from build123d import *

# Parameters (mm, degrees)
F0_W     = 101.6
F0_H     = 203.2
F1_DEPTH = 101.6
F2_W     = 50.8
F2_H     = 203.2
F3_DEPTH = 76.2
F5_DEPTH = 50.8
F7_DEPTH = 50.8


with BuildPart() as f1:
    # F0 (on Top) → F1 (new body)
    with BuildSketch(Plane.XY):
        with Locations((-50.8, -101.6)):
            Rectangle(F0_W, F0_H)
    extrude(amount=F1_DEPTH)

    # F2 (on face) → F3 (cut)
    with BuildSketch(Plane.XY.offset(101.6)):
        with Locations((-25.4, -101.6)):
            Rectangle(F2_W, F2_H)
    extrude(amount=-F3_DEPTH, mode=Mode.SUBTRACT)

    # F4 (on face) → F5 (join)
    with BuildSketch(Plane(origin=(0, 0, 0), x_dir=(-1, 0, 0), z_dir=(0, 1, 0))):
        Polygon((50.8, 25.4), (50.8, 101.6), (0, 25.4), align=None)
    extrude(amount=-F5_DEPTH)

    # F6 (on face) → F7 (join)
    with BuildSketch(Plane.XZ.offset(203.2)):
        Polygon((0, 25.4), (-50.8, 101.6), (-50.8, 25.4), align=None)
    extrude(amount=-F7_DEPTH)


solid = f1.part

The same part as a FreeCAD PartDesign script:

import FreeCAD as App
import Part
import Sketcher

V = App.Vector
Q = App.Units.Quantity


def add_polygon(sketch, points):
    """Adds a closed chain of lines whose ends are joined by coincident constraints."""
    first, n = sketch.GeometryCount, len(points)
    for a, b in zip(points, points[1:] + points[:1]):
        sketch.addGeometry(Part.LineSegment(App.Vector(*a, 0), App.Vector(*b, 0)), False)
    for i in range(n):
        sketch.addConstraint(Sketcher.Constraint("Coincident", first + i, 2, first + (i + 1) % n, 1))

doc = App.newDocument("Part")
body = doc.addObject("PartDesign::Body", "Body")

# Sketch on XY plane
sketch1 = body.newObject("Sketcher::SketchObject", "Sketch")
sketch1.AttachmentSupport = (doc.getObject("XY_Plane"), [""])
sketch1.MapMode = "FlatFace"
add_polygon(sketch1, [(-101.6, 0), (-101.6, -203.2), (0, -203.2), (0, 0)])  # lines 0-3
sketch1.addConstraint([
    Sketcher.Constraint("Vertical", 0),
    Sketcher.Constraint("Horizontal", 1),
    Sketcher.Constraint("Vertical", 2),
    Sketcher.Constraint("Horizontal", 3),
    Sketcher.Constraint("Coincident", 2, 2, -1, 1),
    Sketcher.Constraint("DistanceX", 1, 1, 1, 2, Q("4 in")),
    Sketcher.Constraint("DistanceY", 0, 2, 0, 1, Q("8 in")),
])
pad1 = body.newObject("PartDesign::Pad", "Pad")
pad1.Profile = sketch1
pad1.Length = Q("4 in")

# Sketch on XY plane
sketch2 = body.newObject("Sketcher::SketchObject", "Sketch001")
sketch2.AttachmentSupport = (doc.getObject("XY_Plane"), [""])
sketch2.MapMode = "FlatFace"
sketch2.AttachmentOffset = App.Placement(V(0, 0, 4 * 25.4), App.Rotation())
add_polygon(sketch2, [(-50.8, 0), (-50.8, -203.2), (0, -203.2), (0, 0)])  # lines 0-3
sketch2.addConstraint([
    Sketcher.Constraint("Vertical", 0),
    Sketcher.Constraint("Horizontal", 1),
    Sketcher.Constraint("Vertical", 2),
    Sketcher.Constraint("Horizontal", 3),
    Sketcher.Constraint("Coincident", 2, 2, -1, 1),
    Sketcher.Constraint("DistanceX", 1, 1, 1, 2, Q("2 in")),
    Sketcher.Constraint("DistanceY", 0, 2, 0, 1, Q("8 in")),
])
pocket1 = body.newObject("PartDesign::Pocket", "Pocket")
pocket1.Profile = sketch2
pocket1.Length = Q("3 in")

# Sketch on XZ plane
sketch3 = body.newObject("Sketcher::SketchObject", "Sketch002")
sketch3.AttachmentSupport = (doc.getObject("XZ_Plane"), [""])
sketch3.MapMode = "FlatFace"
add_polygon(sketch3, [(-50.8, 25.4), (-50.8, 101.6), (0, 25.4)])  # lines 0-2
sketch3.addConstraint([
    Sketcher.Constraint("Vertical", 0),
    Sketcher.Constraint("Horizontal", 2),
    Sketcher.Constraint("PointOnObject", 1, 2, -2),
    Sketcher.Constraint("DistanceX", 2, 2, 2, 1, Q("2 in")),
    Sketcher.Constraint("DistanceY", 0, 1, 0, 2, Q("3 in")),
    Sketcher.Constraint("DistanceY", -1, 1, 0, 2, Q("4 in")),
])
pad2 = body.newObject("PartDesign::Pad", "Pad001")
pad2.Profile = sketch3
pad2.Length = Q("2 in")

# Sketch on XZ plane
sketch4 = body.newObject("Sketcher::SketchObject", "Sketch003")
sketch4.AttachmentSupport = (doc.getObject("XZ_Plane"), [""])
sketch4.MapMode = "FlatFace"
sketch4.AttachmentOffset = App.Placement(V(0, 0, 8 * 25.4), App.Rotation())
add_polygon(sketch4, [(0, 25.4), (-50.8, 101.6), (-50.8, 25.4)])  # lines 0-2
sketch4.addConstraint([
    Sketcher.Constraint("Vertical", 1),
    Sketcher.Constraint("Horizontal", 2),
    Sketcher.Constraint("PointOnObject", 2, 2, -2),
    Sketcher.Constraint("DistanceX", 2, 1, 2, 2, Q("2 in")),
    Sketcher.Constraint("DistanceY", 1, 2, 1, 1, Q("3 in")),
    Sketcher.Constraint("DistanceY", -1, 1, 0, 2, Q("4 in")),
])
pad3 = body.newObject("PartDesign::Pad", "Pad002")
pad3.Profile = sketch4
pad3.Length = Q("2 in")
pad3.Reversed = True

doc.recompute()
